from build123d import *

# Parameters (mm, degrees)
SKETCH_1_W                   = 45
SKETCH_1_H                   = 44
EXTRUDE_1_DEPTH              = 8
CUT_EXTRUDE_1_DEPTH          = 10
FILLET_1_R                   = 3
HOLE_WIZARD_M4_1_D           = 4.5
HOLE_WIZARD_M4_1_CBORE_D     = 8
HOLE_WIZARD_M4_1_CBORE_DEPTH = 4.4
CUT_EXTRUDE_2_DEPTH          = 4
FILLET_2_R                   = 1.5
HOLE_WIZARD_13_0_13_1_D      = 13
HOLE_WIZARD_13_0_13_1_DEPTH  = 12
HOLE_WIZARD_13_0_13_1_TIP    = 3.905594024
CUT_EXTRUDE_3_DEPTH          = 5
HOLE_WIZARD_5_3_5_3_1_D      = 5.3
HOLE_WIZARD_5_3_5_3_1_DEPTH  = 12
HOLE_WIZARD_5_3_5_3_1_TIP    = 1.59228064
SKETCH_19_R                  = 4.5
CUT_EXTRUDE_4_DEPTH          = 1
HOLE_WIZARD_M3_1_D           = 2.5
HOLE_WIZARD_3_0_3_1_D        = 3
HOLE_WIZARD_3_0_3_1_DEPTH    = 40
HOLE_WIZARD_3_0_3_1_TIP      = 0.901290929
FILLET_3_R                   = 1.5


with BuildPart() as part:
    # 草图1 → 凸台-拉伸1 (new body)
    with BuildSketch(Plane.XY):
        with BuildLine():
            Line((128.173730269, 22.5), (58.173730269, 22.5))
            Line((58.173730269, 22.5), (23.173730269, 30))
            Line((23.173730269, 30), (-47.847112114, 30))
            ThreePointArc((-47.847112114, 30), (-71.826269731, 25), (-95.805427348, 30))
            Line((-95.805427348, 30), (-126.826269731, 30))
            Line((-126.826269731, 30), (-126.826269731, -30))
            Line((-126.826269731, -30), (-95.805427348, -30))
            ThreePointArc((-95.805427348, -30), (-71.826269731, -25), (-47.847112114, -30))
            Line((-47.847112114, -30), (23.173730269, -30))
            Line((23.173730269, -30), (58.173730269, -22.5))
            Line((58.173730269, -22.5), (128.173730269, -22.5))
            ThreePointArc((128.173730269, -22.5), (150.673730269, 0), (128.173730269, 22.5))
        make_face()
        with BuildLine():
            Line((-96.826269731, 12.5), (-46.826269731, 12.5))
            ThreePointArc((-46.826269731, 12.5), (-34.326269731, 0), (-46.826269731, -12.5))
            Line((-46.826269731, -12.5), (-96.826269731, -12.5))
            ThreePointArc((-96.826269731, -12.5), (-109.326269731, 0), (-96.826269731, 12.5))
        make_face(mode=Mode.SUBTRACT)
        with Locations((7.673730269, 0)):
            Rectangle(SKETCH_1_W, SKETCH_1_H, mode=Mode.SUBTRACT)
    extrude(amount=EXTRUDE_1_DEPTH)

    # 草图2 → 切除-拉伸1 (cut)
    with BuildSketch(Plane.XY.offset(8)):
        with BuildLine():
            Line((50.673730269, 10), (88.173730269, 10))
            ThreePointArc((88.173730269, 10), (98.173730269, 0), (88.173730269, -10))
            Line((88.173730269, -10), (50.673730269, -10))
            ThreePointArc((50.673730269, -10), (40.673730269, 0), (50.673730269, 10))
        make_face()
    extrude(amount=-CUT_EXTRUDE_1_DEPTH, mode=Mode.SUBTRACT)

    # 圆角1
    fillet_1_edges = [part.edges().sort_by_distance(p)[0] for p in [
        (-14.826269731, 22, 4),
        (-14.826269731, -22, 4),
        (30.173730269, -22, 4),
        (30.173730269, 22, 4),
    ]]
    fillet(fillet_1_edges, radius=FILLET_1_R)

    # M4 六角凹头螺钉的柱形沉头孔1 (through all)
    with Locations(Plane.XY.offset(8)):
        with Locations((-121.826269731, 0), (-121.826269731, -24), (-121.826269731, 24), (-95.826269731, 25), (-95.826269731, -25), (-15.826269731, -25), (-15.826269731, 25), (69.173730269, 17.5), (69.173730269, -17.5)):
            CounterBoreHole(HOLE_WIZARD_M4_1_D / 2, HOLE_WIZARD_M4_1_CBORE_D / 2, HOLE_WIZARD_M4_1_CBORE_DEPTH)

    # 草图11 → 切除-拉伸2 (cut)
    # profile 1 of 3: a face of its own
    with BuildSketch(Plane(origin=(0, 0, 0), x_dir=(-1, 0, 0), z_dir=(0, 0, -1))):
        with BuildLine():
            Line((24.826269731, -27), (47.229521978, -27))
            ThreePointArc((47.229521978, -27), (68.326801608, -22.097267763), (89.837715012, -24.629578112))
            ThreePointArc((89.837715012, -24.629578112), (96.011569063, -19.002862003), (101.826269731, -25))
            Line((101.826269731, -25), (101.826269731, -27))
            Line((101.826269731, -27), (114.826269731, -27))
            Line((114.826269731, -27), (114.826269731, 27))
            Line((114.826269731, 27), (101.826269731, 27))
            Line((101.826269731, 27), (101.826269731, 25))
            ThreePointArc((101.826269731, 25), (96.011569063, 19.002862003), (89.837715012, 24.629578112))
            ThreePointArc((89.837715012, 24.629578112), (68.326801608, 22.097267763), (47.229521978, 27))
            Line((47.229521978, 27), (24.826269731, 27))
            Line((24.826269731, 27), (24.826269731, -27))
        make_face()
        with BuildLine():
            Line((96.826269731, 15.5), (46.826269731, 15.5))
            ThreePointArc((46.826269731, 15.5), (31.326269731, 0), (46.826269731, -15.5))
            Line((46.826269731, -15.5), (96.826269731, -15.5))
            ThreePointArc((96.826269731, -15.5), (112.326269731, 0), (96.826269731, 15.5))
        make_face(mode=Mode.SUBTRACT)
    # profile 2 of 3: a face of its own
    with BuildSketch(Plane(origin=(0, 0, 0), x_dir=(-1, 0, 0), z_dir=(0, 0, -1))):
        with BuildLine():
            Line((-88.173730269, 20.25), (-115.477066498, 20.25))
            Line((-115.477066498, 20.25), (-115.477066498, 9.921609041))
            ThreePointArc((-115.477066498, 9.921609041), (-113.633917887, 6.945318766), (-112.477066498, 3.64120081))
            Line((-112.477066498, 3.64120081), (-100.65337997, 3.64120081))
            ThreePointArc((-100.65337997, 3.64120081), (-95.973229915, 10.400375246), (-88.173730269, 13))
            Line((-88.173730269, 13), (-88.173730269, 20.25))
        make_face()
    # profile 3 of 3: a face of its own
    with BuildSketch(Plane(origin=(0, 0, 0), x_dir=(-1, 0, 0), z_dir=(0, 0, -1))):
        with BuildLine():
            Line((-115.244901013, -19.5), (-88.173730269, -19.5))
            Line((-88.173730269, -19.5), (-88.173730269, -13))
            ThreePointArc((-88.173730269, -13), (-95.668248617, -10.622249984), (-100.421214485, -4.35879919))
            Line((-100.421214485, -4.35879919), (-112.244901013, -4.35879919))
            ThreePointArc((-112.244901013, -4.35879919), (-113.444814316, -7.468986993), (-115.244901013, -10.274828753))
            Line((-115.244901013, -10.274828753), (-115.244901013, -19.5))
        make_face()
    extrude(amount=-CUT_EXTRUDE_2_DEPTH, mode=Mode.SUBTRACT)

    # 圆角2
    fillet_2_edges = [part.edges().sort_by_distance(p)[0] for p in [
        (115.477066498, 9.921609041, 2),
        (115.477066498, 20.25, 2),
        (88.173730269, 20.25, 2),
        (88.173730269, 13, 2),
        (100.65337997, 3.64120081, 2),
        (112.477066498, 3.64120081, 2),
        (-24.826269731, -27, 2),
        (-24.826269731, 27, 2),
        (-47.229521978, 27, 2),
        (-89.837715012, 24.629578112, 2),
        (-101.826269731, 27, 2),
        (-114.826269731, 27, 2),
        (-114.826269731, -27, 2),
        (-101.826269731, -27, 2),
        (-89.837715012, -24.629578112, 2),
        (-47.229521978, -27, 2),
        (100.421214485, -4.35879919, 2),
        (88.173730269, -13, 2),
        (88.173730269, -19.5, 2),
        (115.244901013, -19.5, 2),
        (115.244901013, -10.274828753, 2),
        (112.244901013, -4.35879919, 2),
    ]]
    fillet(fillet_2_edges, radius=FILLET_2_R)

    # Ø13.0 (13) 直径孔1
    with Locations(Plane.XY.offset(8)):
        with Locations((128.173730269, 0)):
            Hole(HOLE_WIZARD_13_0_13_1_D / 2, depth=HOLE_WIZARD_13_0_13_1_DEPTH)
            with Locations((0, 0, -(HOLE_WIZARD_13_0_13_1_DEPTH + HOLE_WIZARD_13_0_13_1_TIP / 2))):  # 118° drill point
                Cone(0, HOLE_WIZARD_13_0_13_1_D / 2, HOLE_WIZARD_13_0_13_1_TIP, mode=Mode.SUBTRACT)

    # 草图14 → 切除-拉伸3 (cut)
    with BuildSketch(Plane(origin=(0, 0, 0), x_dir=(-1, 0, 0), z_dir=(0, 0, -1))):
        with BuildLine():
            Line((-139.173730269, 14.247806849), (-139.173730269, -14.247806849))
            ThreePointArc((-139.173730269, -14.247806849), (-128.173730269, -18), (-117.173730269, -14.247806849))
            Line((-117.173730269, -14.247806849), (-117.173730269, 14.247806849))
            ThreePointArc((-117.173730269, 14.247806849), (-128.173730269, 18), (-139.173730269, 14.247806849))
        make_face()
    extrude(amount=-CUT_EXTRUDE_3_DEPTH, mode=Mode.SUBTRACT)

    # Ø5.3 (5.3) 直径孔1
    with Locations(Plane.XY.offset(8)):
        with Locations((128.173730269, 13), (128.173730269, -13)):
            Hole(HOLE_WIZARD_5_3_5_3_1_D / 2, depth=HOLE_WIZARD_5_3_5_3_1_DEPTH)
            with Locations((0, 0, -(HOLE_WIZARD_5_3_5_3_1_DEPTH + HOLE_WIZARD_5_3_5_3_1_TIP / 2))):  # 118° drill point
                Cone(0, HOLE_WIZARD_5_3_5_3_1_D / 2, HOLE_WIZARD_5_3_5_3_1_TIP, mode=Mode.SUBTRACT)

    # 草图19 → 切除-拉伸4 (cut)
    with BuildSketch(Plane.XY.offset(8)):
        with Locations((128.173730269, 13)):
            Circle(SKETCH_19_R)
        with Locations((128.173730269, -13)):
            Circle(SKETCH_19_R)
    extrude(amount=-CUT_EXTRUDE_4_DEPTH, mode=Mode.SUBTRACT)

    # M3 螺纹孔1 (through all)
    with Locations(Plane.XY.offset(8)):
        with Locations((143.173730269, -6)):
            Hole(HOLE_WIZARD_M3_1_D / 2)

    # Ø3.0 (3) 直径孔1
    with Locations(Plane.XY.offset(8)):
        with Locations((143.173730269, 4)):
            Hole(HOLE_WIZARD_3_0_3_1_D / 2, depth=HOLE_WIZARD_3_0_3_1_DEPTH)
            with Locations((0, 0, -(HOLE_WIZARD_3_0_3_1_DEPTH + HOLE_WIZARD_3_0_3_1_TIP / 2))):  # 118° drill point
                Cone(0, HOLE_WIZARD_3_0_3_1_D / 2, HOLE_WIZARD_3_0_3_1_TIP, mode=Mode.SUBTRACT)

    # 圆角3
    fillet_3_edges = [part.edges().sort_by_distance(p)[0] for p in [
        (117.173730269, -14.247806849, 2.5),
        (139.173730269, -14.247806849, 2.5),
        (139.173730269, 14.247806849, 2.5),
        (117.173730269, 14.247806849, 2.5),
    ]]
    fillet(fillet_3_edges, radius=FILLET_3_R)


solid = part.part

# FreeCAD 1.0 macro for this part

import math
import FreeCAD as App
import Part
import Sketcher

V = App.Vector


def edges_at(feature, points):
    """Names of the edges that pass closest to the given points."""
    edges = feature.Shape.Edges
    near = lambda p: min(range(len(edges)), key=lambda i: edges[i].distToShape(Part.Vertex(*p))[0])
    return sorted({f"Edge{near(p) + 1}" for p in points})

doc = App.newDocument("Part")
body = doc.addObject("PartDesign::Body", "Body")

# Sketch on XY plane
sketch1 = body.newObject("Sketcher::SketchObject", "Sketch")
sketch1.AttachmentSupport = (doc.getObject("XY_Plane"), [""])
sketch1.MapMode = "FlatFace"
sketch1.addGeometry(Part.LineSegment(V(128, 22, 0), V(58, 22, 0)), False)
sketch1.addGeometry(Part.LineSegment(V(58, 22, 0), V(23, 30, 0)), False)
sketch1.addGeometry(Part.LineSegment(V(23, 30, 0), V(-48, 30, 0)), False)
sketch1.addGeometry(Part.ArcOfCircle(Part.Circle(V(-72, 85, 0), V(0, 0, 1), 60), math.radians(-114), math.radians(-66)), False)
sketch1.addGeometry(Part.LineSegment(V(-96, 30, 0), V(-127, 30, 0)), False)
sketch1.addGeometry(Part.LineSegment(V(-127, 30, 0), V(-127, -30, 0)), False)
sketch1.addGeometry(Part.LineSegment(V(-127, -30, 0), V(-96, -30, 0)), False)
sketch1.addGeometry(Part.ArcOfCircle(Part.Circle(V(-72, -85, 0), V(0, 0, 1), 60), math.radians(66), math.radians(114)), False)
sketch1.addGeometry(Part.LineSegment(V(-48, -30, 0), V(23, -30, 0)), False)
sketch1.addGeometry(Part.LineSegment(V(23, -30, 0), V(58, -22, 0)), False)
sketch1.addGeometry(Part.LineSegment(V(58, -22, 0), V(128, -22, 0)), False)
sketch1.addGeometry(Part.ArcOfCircle(Part.Circle(V(128, 0, 0), V(0, 0, 1), 22), math.radians(-90), math.radians(90)), False)
sketch1.addGeometry(Part.ArcOfCircle(Part.Circle(V(-97, 0, 0), V(0, 0, 1), 12), math.radians(90), math.radians(270)), False)
sketch1.addGeometry(Part.LineSegment(V(-97, 12, 0), V(-47, 12, 0)), False)
sketch1.addGeometry(Part.ArcOfCircle(Part.Circle(V(-47, 0, 0), V(0, 0, 1), 12), math.radians(-90), math.radians(90)), False)
sketch1.addGeometry(Part.LineSegment(V(-47, -12, 0), V(-97, -12, 0)), False)
sketch1.addGeometry(Part.LineSegment(V(30, -22, 0), V(-15, -22, 0)), False)
sketch1.addGeometry(Part.LineSegment(V(-15, -22, 0), V(-15, 22, 0)), False)
sketch1.addGeometry(Part.LineSegment(V(-15, 22, 0), V(30, 22, 0)), False)
sketch1.addGeometry(Part.LineSegment(V(30, 22, 0), V(30, -22, 0)), False)
sketch1.addConstraint(Sketcher.Constraint("Coincident", 0, 2, 1, 1))
sketch1.addConstraint(Sketcher.Constraint("Coincident", 1, 2, 2, 1))
sketch1.addConstraint(Sketcher.Constraint("Coincident", 2, 2, 3, 2))
sketch1.addConstraint(Sketcher.Constraint("Coincident", 3, 1, 4, 1))
sketch1.addConstraint(Sketcher.Constraint("Coincident", 4, 2, 5, 1))
sketch1.addConstraint(Sketcher.Constraint("Coincident", 5, 2, 6, 1))
sketch1.addConstraint(Sketcher.Constraint("Coincident", 6, 2, 7, 2))
sketch1.addConstraint(Sketcher.Constraint("Coincident", 7, 1, 8, 1))
sketch1.addConstraint(Sketcher.Constraint("Coincident", 8, 2, 9, 1))
sketch1.addConstraint(Sketcher.Constraint("Coincident", 9, 2, 10, 1))
sketch1.addConstraint(Sketcher.Constraint("Tangent", 10, 2, 11, 1))
sketch1.addConstraint(Sketcher.Constraint("Tangent", 11, 2, 0, 1))
sketch1.addConstraint(Sketcher.Constraint("Tangent", 12, 1, 13, 1))
sketch1.addConstraint(Sketcher.Constraint("Tangent", 13, 2, 14, 2))
sketch1.addConstraint(Sketcher.Constraint("Tangent", 14, 1, 15, 1))
sketch1.addConstraint(Sketcher.Constraint("Tangent", 15, 2, 12, 2))
sketch1.addConstraint(Sketcher.Constraint("Coincident", 16, 2, 17, 1))
sketch1.addConstraint(Sketcher.Constraint("Coincident", 17, 2, 18, 1))
sketch1.addConstraint(Sketcher.Constraint("Coincident", 18, 2, 19, 1))
sketch1.addConstraint(Sketcher.Constraint("Coincident", 19, 2, 16, 1))
sketch1.addConstraint(Sketcher.Constraint("Horizontal", 0))
sketch1.addConstraint(Sketcher.Constraint("Horizontal", 2))
sketch1.addConstraint(Sketcher.Constraint("Horizontal", 4))
sketch1.addConstraint(Sketcher.Constraint("Vertical", 5))
sketch1.addConstraint(Sketcher.Constraint("Horizontal", 6))
sketch1.addConstraint(Sketcher.Constraint("Horizontal", 8))
sketch1.addConstraint(Sketcher.Constraint("Horizontal", 10))
sketch1.addConstraint(Sketcher.Constraint("Horizontal", 13))
sketch1.addConstraint(Sketcher.Constraint("Horizontal", 15))
sketch1.addConstraint(Sketcher.Constraint("Horizontal", 16))
sketch1.addConstraint(Sketcher.Constraint("Vertical", 17))
sketch1.addConstraint(Sketcher.Constraint("Horizontal", 18))
sketch1.addConstraint(Sketcher.Constraint("Vertical", 19))
sketch1.addConstraint(Sketcher.Constraint("Equal", 3, 7))
sketch1.addConstraint(Sketcher.Constraint("Symmetric", 3, 3, 7, 3, -1))
sketch1.addConstraint(Sketcher.Constraint("Symmetric", 1, 2, 8, 2, -1))
sketch1.addConstraint(Sketcher.Constraint("Symmetric", 0, 2, 9, 2, -1))
sketch1.addConstraint(Sketcher.Constraint("PointOnObject", 12, 3, -1))
sketch1.addConstraint(Sketcher.Constraint("Horizontal", 2, 2, 3, 1))
sketch1.addConstraint(Sketcher.Constraint("Horizontal", 6, 2, 7, 1))
sketch1.addConstraint(Sketcher.Constraint("Radius", 3, 60.0))
sketch1.addConstraint(Sketcher.Constraint("Radius", 11, 22.5))
sketch1.addConstraint(Sketcher.Constraint("Radius", 12, 12.5))
sketch1.addConstraint(Sketcher.Constraint("DistanceX", 0, 2, 0, 1, 70.0))
sketch1.addConstraint(Sketcher.Constraint("DistanceX", 13, 1, 13, 2, 50.0))
sketch1.addConstraint(Sketcher.Constraint("DistanceX", 16, 2, 16, 1, 45.0))
sketch1.addConstraint(Sketcher.Constraint("DistanceY", 5, 2, 5, 1, 60.0))
sketch1.addConstraint(Sketcher.Constraint("DistanceY", 17, 1, 17, 2, 44.0))
sketch1.addConstraint(Sketcher.Constraint("DistanceY", -1, 1, 3, 3, 85.0))
sketch1.addConstraint(Sketcher.Constraint("DistanceY", 16, 2, -1, 1, 22.0))
sketch1.addConstraint(Sketcher.Constraint("DistanceX", 3, 3, 11, 3, 200.0))
sketch1.addConstraint(Sketcher.Constraint("DistanceX", 12, 3, 3, 3, 25.0))
sketch1.addConstraint(Sketcher.Constraint("DistanceX", 1, 2, 0, 2, 35.0))
sketch1.addConstraint(Sketcher.Constraint("DistanceX", 4, 2, 12, 3, 30.0))
sketch1.addConstraint(Sketcher.Constraint("DistanceX", 14, 1, 16, 2, 32.0))
sketch1.addConstraint(Sketcher.Constraint("DistanceX", 3, 3, -1, 1, 71.82627))
pad1 = body.newObject("PartDesign::Pad", "Pad")
pad1.Profile = sketch1
pad1.Length = 8

# Sketch on XY plane
sketch2 = body.newObject("Sketcher::SketchObject", "Sketch001")
sketch2.AttachmentSupport = (doc.getObject("XY_Plane"), [""])
sketch2.MapMode = "FlatFace"
sketch2.AttachmentOffset = App.Placement(V(0, 0, 8), App.Rotation())
sketch2.addGeometry(Part.LineSegment(V(88, 10, 0), V(51, 10, 0)), False)
sketch2.addGeometry(Part.ArcOfCircle(Part.Circle(V(51, 0, 0), V(0, 0, 1), 10), math.radians(90), math.radians(270)), False)
sketch2.addGeometry(Part.LineSegment(V(51, -10, 0), V(88, -10, 0)), False)
sketch2.addGeometry(Part.ArcOfCircle(Part.Circle(V(88, 0, 0), V(0, 0, 1), 10), math.radians(-90), math.radians(90)), False)
sketch2.addConstraint(Sketcher.Constraint("Tangent", 0, 2, 1, 1))
sketch2.addConstraint(Sketcher.Constraint("Tangent", 1, 2, 2, 1))
sketch2.addConstraint(Sketcher.Constraint("Tangent", 2, 2, 3, 1))
sketch2.addConstraint(Sketcher.Constraint("Tangent", 3, 2, 0, 1))
sketch2.addConstraint(Sketcher.Constraint("Horizontal", 0))
sketch2.addConstraint(Sketcher.Constraint("Horizontal", 2))
sketch2.addConstraint(Sketcher.Constraint("PointOnObject", 1, 3, -1))
sketch2.addConstraint(Sketcher.Constraint("Radius", 1, 10.0))
sketch2.addConstraint(Sketcher.Constraint("DistanceX", 0, 2, 0, 1, 37.5))
sketch2.addConstraint(Sketcher.Constraint("DistanceX", -1, 1, 1, 3, 50.67373))
pocket1 = body.newObject("PartDesign::Pocket", "Pocket")
pocket1.Profile = sketch2
pocket1.Length = 10
doc.recompute()

fillet = body.newObject("PartDesign::Fillet", "Fillet")
fillet.Base = (pocket1, edges_at(pocket1, [
    (-14.826, 22, 4),
    (-14.826, -22, 4),
    (30.174, -22, 4),
    (30.174, 22, 4),
]))
fillet.Radius = 3

# Sketch on XY plane
sketch3 = body.newObject("Sketcher::SketchObject", "Sketch002")
sketch3.AttachmentSupport = (doc.getObject("XY_Plane"), [""])
sketch3.MapMode = "FlatFace"
sketch3.AttachmentOffset = App.Placement(V(0, 0, 8), App.Rotation())
sketch3.addGeometry(Part.Circle(V(-121.8, 0, 0), V(0, 0, 1), 2.2), False)
sketch3.addGeometry(Part.Circle(V(-121.8, -24, 0), V(0, 0, 1), 2.2), False)
sketch3.addGeometry(Part.Circle(V(-121.8, 24, 0), V(0, 0, 1), 2.2), False)
sketch3.addGeometry(Part.Circle(V(-95.8, 25, 0), V(0, 0, 1), 2.2), False)
sketch3.addGeometry(Part.Circle(V(-95.8, -25, 0), V(0, 0, 1), 2.2), False)
sketch3.addGeometry(Part.Circle(V(-15.8, -25, 0), V(0, 0, 1), 2.2), False)
sketch3.addGeometry(Part.Circle(V(-15.8, 25, 0), V(0, 0, 1), 2.2), False)
sketch3.addGeometry(Part.Circle(V(69.2, 17.5, 0), V(0, 0, 1), 2.2), False)
sketch3.addGeometry(Part.Circle(V(69.2, -17.5, 0), V(0, 0, 1), 2.2), False)
sketch3.addConstraint(Sketcher.Constraint("Equal", 0, 1))
sketch3.addConstraint(Sketcher.Constraint("Equal", 1, 2))
sketch3.addConstraint(Sketcher.Constraint("Equal", 2, 3))
sketch3.addConstraint(Sketcher.Constraint("Equal", 3, 4))
sketch3.addConstraint(Sketcher.Constraint("Equal", 4, 5))
sketch3.addConstraint(Sketcher.Constraint("Equal", 5, 6))
sketch3.addConstraint(Sketcher.Constraint("Equal", 6, 7))
sketch3.addConstraint(Sketcher.Constraint("Equal", 7, 8))
sketch3.addConstraint(Sketcher.Constraint("Symmetric", 1, 3, 2, 3, -1))
sketch3.addConstraint(Sketcher.Constraint("Symmetric", 3, 3, 4, 3, -1))
sketch3.addConstraint(Sketcher.Constraint("Symmetric", 5, 3, 6, 3, -1))
sketch3.addConstraint(Sketcher.Constraint("Symmetric", 7, 3, 8, 3, -1))
sketch3.addConstraint(Sketcher.Constraint("PointOnObject", 0, 3, -1))
sketch3.addConstraint(Sketcher.Constraint("Horizontal", 4, 3, 5, 3))
sketch3.addConstraint(Sketcher.Constraint("Vertical", 0, 3, 1, 3))
sketch3.addConstraint(Sketcher.Constraint("Diameter", 0, 4.5))
sketch3.addConstraint(Sketcher.Constraint("DistanceY", 1, 3, -1, 1, 24.0))
sketch3.addConstraint(Sketcher.Constraint("DistanceY", -1, 1, 3, 3, 25.0))
sketch3.addConstraint(Sketcher.Constraint("DistanceX", 2, 3, 3, 3, 26.0))
sketch3.addConstraint(Sketcher.Constraint("DistanceX", 4, 3, 5, 3, 80.0))
sketch3.addConstraint(Sketcher.Constraint("DistanceX", 6, 3, 7, 3, 85.0))
sketch3.addConstraint(Sketcher.Constraint("DistanceY", 8, 3, 7, 3, 35.0))
sketch3.addConstraint(Sketcher.Constraint("DistanceX", 0, 3, -1, 1, 121.82627))
doc.recompute()
hole = body.newObject("PartDesign::Hole", "Hole")
hole.Profile = sketch3
hole.ThreadType = "None"
hole.Diameter = 4.5
hole.DepthType = "ThroughAll"
hole.HoleCutType = "Counterbore"
hole.HoleCutDiameter = 8
hole.HoleCutDepth = 4.4

# Sketch on XY plane
sketch4 = body.newObject("Sketcher::SketchObject", "Sketch003")
sketch4.AttachmentSupport = (doc.getObject("XY_Plane"), [""])
sketch4.MapMode = "FlatFace"
sketch4.addGeometry(Part.LineSegment(V(-24.8, -27, 0), V(-47.2, -27, 0)), False)
sketch4.addGeometry(Part.ArcOfCircle(Part.Circle(V(-71.8, -85, 0), V(0, 0, 1), 63), math.radians(67), math.radians(107)), False)
sketch4.addGeometry(Part.ArcOfCircle(Part.Circle(V(-95.8, -25, 0), V(0, 0, 1), 6), math.radians(4), math.radians(180)), False)
sketch4.addGeometry(Part.LineSegment(V(-101.8, -25, 0), V(-101.8, -27, 0)), False)
sketch4.addGeometry(Part.LineSegment(V(-101.8, -27, 0), V(-114.8, -27, 0)), False)
sketch4.addGeometry(Part.LineSegment(V(-114.8, -27, 0), V(-114.8, 27, 0)), False)
sketch4.addGeometry(Part.LineSegment(V(-114.8, 27, 0), V(-101.8, 27, 0)), False)
sketch4.addGeometry(Part.LineSegment(V(-101.8, 27, 0), V(-101.8, 25, 0)), False)
sketch4.addGeometry(Part.ArcOfCircle(Part.Circle(V(-95.8, 25, 0), V(0, 0, 1), 6), math.radians(180), math.radians(356)), False)
sketch4.addGeometry(Part.ArcOfCircle(Part.Circle(V(-71.8, 85, 0), V(0, 0, 1), 63), math.radians(-107), math.radians(-67)), False)
sketch4.addGeometry(Part.LineSegment(V(-47.2, 27, 0), V(-24.8, 27, 0)), False)
sketch4.addGeometry(Part.LineSegment(V(-24.8, 27, 0), V(-24.8, -27, 0)), False)
sketch4.addGeometry(Part.LineSegment(V(-46.8, 15.5, 0), V(-96.8, 15.5, 0)), False)
sketch4.addGeometry(Part.ArcOfCircle(Part.Circle(V(-96.8, 0, 0), V(0, 0, 1), 15.5), math.radians(90), math.radians(270)), False)
sketch4.addGeometry(Part.LineSegment(V(-96.8, -15.5, 0), V(-46.8, -15.5, 0)), False)
sketch4.addGeometry(Part.ArcOfCircle(Part.Circle(V(-46.8, 0, 0), V(0, 0, 1), 15.5), math.radians(-90), math.radians(90)), False)
sketch4.addGeometry(Part.LineSegment(V(88.2, 20.2, 0), V(115.5, 20.2, 0)), False)
sketch4.addGeometry(Part.LineSegment(V(115.5, 20.2, 0), V(115.5, 9.9, 0)), False)
sketch4.addGeometry(Part.ArcOfCircle(Part.Circle(V(128.2, 0, 0), V(0, 0, 1), 16.1), math.radians(142), math.radians(167)), False)
sketch4.addGeometry(Part.LineSegment(V(112.5, 3.6, 0), V(100.7, 3.6, 0)), False)
sketch4.addGeometry(Part.ArcOfCircle(Part.Circle(V(88.2, 0, 0), V(0, 0, 1), 13), math.radians(16), math.radians(90)), False)
sketch4.addGeometry(Part.LineSegment(V(88.2, 13, 0), V(88.2, 20.2, 0)), False)
sketch4.addGeometry(Part.LineSegment(V(115.2, -19.5, 0), V(88.2, -19.5, 0)), False)
sketch4.addGeometry(Part.LineSegment(V(88.2, -19.5, 0), V(88.2, -13, 0)), False)
sketch4.addGeometry(Part.ArcOfCircle(Part.Circle(V(88.2, 0, 0), V(0, 0, 1), 13), math.radians(-90), math.radians(-20)), False)
sketch4.addGeometry(Part.LineSegment(V(100.4, -4.4, 0), V(112.2, -4.4, 0)), False)
sketch4.addGeometry(Part.ArcOfCircle(Part.Circle(V(128.2, 0, 0), V(0, 0, 1), 16.5), math.radians(-165), math.radians(-142)), False)
sketch4.addGeometry(Part.LineSegment(V(115.2, -10.3, 0), V(115.2, -19.5, 0)), False)
sketch4.addConstraint(Sketcher.Constraint("Coincident", 0, 2, 1, 1))
sketch4.addConstraint(Sketcher.Constraint("Coincident", 1, 2, 2, 1))
sketch4.addConstraint(Sketcher.Constraint("Tangent", 2, 2, 3, 1))
sketch4.addConstraint(Sketcher.Constraint("Coincident", 3, 2, 4, 1))
sketch4.addConstraint(Sketcher.Constraint("Coincident", 4, 2, 5, 1))
sketch4.addConstraint(Sketcher.Constraint("Coincident", 5, 2, 6, 1))
sketch4.addConstraint(Sketcher.Constraint("Coincident", 6, 2, 7, 1))
sketch4.addConstraint(Sketcher.Constraint("Tangent", 7, 2, 8, 1))
sketch4.addConstraint(Sketcher.Constraint("Coincident", 8, 2, 9, 1))
sketch4.addConstraint(Sketcher.Constraint("Coincident", 9, 2, 10, 1))
sketch4.addConstraint(Sketcher.Constraint("Coincident", 10, 2, 11, 1))
sketch4.addConstraint(Sketcher.Constraint("Coincident", 11, 2, 0, 1))
sketch4.addConstraint(Sketcher.Constraint("Tangent", 12, 2, 13, 1))
sketch4.addConstraint(Sketcher.Constraint("Tangent", 13, 2, 14, 1))
sketch4.addConstraint(Sketcher.Constraint("Tangent", 14, 2, 15, 1))
sketch4.addConstraint(Sketcher.Constraint("Tangent", 15, 2, 12, 1))
sketch4.addConstraint(Sketcher.Constraint("Coincident", 16, 2, 17, 1))
sketch4.addConstraint(Sketcher.Constraint("Coincident", 17, 2, 18, 1))
sketch4.addConstraint(Sketcher.Constraint("Coincident", 18, 2, 19, 1))
sketch4.addConstraint(Sketcher.Constraint("Coincident", 19, 2, 20, 1))
sketch4.addConstraint(Sketcher.Constraint("Coincident", 20, 2, 21, 1))
sketch4.addConstraint(Sketcher.Constraint("Coincident", 21, 2, 16, 1))
sketch4.addConstraint(Sketcher.Constraint("Coincident", 22, 2, 23, 1))
sketch4.addConstraint(Sketcher.Constraint("Coincident", 23, 2, 24, 1))
sketch4.addConstraint(Sketcher.Constraint("Coincident", 24, 2, 25, 1))
sketch4.addConstraint(Sketcher.Constraint("Coincident", 25, 2, 26, 1))
sketch4.addConstraint(Sketcher.Constraint("Coincident", 26, 2, 27, 1))
sketch4.addConstraint(Sketcher.Constraint("Coincident", 27, 2, 22, 1))
sketch4.addConstraint(Sketcher.Constraint("Horizontal", 0))
sketch4.addConstraint(Sketcher.Constraint("Vertical", 3))
sketch4.addConstraint(Sketcher.Constraint("Horizontal", 4))
sketch4.addConstraint(Sketcher.Constraint("Vertical", 5))
sketch4.addConstraint(Sketcher.Constraint("Horizontal", 6))
sketch4.addConstraint(Sketcher.Constraint("Vertical", 7))
sketch4.addConstraint(Sketcher.Constraint("Horizontal", 10))
sketch4.addConstraint(Sketcher.Constraint("Vertical", 11))
sketch4.addConstraint(Sketcher.Constraint("Horizontal", 12))
sketch4.addConstraint(Sketcher.Constraint("Horizontal", 14))
sketch4.addConstraint(Sketcher.Constraint("Horizontal", 16))
sketch4.addConstraint(Sketcher.Constraint("Vertical", 17))
sketch4.addConstraint(Sketcher.Constraint("Horizontal", 19))
sketch4.addConstraint(Sketcher.Constraint("Vertical", 21))
sketch4.addConstraint(Sketcher.Constraint("Horizontal", 22))
sketch4.addConstraint(Sketcher.Constraint("Vertical", 23))
sketch4.addConstraint(Sketcher.Constraint("Horizontal", 25))
sketch4.addConstraint(Sketcher.Constraint("Vertical", 27))
sketch4.addConstraint(Sketcher.Constraint("Coincident", 24, 3, 20, 3))
sketch4.addConstraint(Sketcher.Constraint("Coincident", 26, 3, 18, 3))
sketch4.addConstraint(Sketcher.Constraint("Equal", 2, 8))
sketch4.addConstraint(Sketcher.Constraint("Equal", 1, 9))
sketch4.addConstraint(Sketcher.Constraint("Equal", 20, 24))
sketch4.addConstraint(Sketcher.Constraint("Symmetric", 2, 3, 8, 3, -1))
sketch4.addConstraint(Sketcher.Constraint("Symmetric", 1, 3, 9, 3, -1))
sketch4.addConstraint(Sketcher.Constraint("Symmetric", 20, 2, 23, 2, -1))
sketch4.addConstraint(Sketcher.Constraint("PointOnObject", 13, 3, -1))
sketch4.addConstraint(Sketcher.Constraint("PointOnObject", 18, 3, -1))
sketch4.addConstraint(Sketcher.Constraint("Horizontal", 0, 2, 3, 2))
sketch4.addConstraint(Sketcher.Constraint("Horizontal", 6, 2, 9, 2))
sketch4.addConstraint(Sketcher.Constraint("Vertical", 0, 2, 9, 2))
sketch4.addConstraint(Sketcher.Constraint("Vertical", 24, 3, 20, 2))
sketch4.addConstraint(Sketcher.Constraint("Equal", 19, 25))
sketch4.addConstraint(Sketcher.Constraint("Radius", 1, 63.0))
sketch4.addConstraint(Sketcher.Constraint("Radius", 2, 6.0))
sketch4.addConstraint(Sketcher.Constraint("Radius", 20, 13.0))
sketch4.addConstraint(Sketcher.Constraint("Radius", 13, 15.5))
sketch4.addConstraint(Sketcher.Constraint("DistanceX", 4, 2, 4, 1, 13.0))
sketch4.addConstraint(Sketcher.Constraint("DistanceX", 12, 2, 12, 1, 50.0))
sketch4.addConstraint(Sketcher.Constraint("DistanceY", 3, 2, 3, 1, 2.0))
sketch4.addConstraint(Sketcher.Constraint("DistanceY", 5, 1, 5, 2, 54.0))
sketch4.addConstraint(Sketcher.Constraint("DistanceY", 23, 1, 23, 2, 6.5))
sketch4.addConstraint(Sketcher.Constraint("DistanceY", 1, 3, -1, 1, 85.0))
sketch4.addConstraint(Sketcher.Constraint("DistanceX", 2, 3, 1, 3, 24.0))
sketch4.addConstraint(Sketcher.Constraint("DistanceX", 13, 3, 2, 3, 1.0))
sketch4.addConstraint(Sketcher.Constraint("DistanceX", 15, 3, 18, 3, 175.0))
sketch4.addConstraint(Sketcher.Constraint("DistanceX", 20, 3, 18, 3, 40.0))
sketch4.addConstraint(Sketcher.Constraint("DistanceX", 15, 3, 10, 2, 22.0))
sketch4.addConstraint(Sketcher.Constraint("DistanceX", 18, 2, 17, 2, 3.0))
sketch4.addConstraint(Sketcher.Constraint("DistanceY", 24, 2, 19, 2, 8.0))
sketch4.addConstraint(Sketcher.Constraint("DistanceX", 25, 2, 26, 2, 3.0))
sketch4.addConstraint(Sketcher.Constraint("DistanceY", 21, 1, 21, 2, 7.25))
sketch4.addConstraint(Sketcher.Constraint("Radius", 18, 16.11346))
sketch4.addConstraint(Sketcher.Constraint("Radius", 26, 16.51444))
sketch4.addConstraint(Sketcher.Constraint("DistanceX", -1, 1, 25, 2, 112.244901))
pocket2 = body.newObject("PartDesign::Pocket", "Pocket001")
pocket2.Profile = sketch4
pocket2.Length = 4
pocket2.Reversed = True
doc.recompute()

fillet2 = body.newObject("PartDesign::Fillet", "Fillet001")
fillet2.Base = (pocket2, edges_at(pocket2, [
    (115.477, 9.922, 2),
    (115.477, 20.25, 2),
    (88.174, 20.25, 2),
    (88.174, 13, 2),
    (100.653, 3.641, 2),
    (112.477, 3.641, 2),
    (-24.826, -27, 2),
    (-24.826, 27, 2),
    (-47.23, 27, 2),
    (-89.838, 24.63, 2),
    (-101.826, 27, 2),
    (-114.826, 27, 2),
    (-114.826, -27, 2),
    (-101.826, -27, 2),
    (-89.838, -24.63, 2),
    (-47.23, -27, 2),
    (100.421, -4.359, 2),
    (88.174, -13, 2),
    (88.174, -19.5, 2),
    (115.245, -19.5, 2),
    (115.245, -10.275, 2),
    (112.245, -4.359, 2),
]))
fillet2.Radius = 1.5

# Sketch on XY plane
sketch5 = body.newObject("Sketcher::SketchObject", "Sketch004")
sketch5.AttachmentSupport = (doc.getObject("XY_Plane"), [""])
sketch5.MapMode = "FlatFace"
sketch5.AttachmentOffset = App.Placement(V(0, 0, 8), App.Rotation())
sketch5.addGeometry(Part.Circle(V(128, 0, 0), V(0, 0, 1), 6), False)
sketch5.addConstraint(Sketcher.Constraint("PointOnObject", 0, 3, -1))
sketch5.addConstraint(Sketcher.Constraint("Diameter", 0, 13.0))
sketch5.addConstraint(Sketcher.Constraint("DistanceX", -1, 1, 0, 3, 128.17373))
doc.recompute()
hole2 = body.newObject("PartDesign::Hole", "Hole001")
hole2.Profile = sketch5
hole2.ThreadType = "None"
hole2.Diameter = 13
hole2.DepthType = "Dimension"
hole2.Depth = 12
hole2.DrillPoint = "Angled"
hole2.DrillPointAngle = 118

# Sketch on XY plane
sketch6 = body.newObject("Sketcher::SketchObject", "Sketch005")
sketch6.AttachmentSupport = (doc.getObject("XY_Plane"), [""])
sketch6.MapMode = "FlatFace"
sketch6.addGeometry(Part.LineSegment(V(139, 14, 0), V(139, -14, 0)), False)
sketch6.addGeometry(Part.ArcOfCircle(Part.Circle(V(128, 0, 0), V(0, 0, 1), 18), math.radians(-128), math.radians(-52)), False)
sketch6.addGeometry(Part.LineSegment(V(117, -14, 0), V(117, 14, 0)), False)
sketch6.addGeometry(Part.ArcOfCircle(Part.Circle(V(128, 0, 0), V(0, 0, 1), 18), math.radians(52), math.radians(128)), False)
sketch6.addConstraint(Sketcher.Constraint("Coincident", 0, 2, 1, 2))
sketch6.addConstraint(Sketcher.Constraint("Coincident", 1, 1, 2, 1))
sketch6.addConstraint(Sketcher.Constraint("Coincident", 2, 2, 3, 2))
sketch6.addConstraint(Sketcher.Constraint("Coincident", 3, 1, 0, 1))
sketch6.addConstraint(Sketcher.Constraint("Vertical", 0))
sketch6.addConstraint(Sketcher.Constraint("Vertical", 2))
sketch6.addConstraint(Sketcher.Constraint("Coincident", 3, 3, 1, 3))
sketch6.addConstraint(Sketcher.Constraint("Equal", 1, 3))
sketch6.addConstraint(Sketcher.Constraint("PointOnObject", 1, 3, -1))
sketch6.addConstraint(Sketcher.Constraint("Horizontal", 0, 2, 1, 1))
sketch6.addConstraint(Sketcher.Constraint("Radius", 1, 18.0))
sketch6.addConstraint(Sketcher.Constraint("DistanceX", 3, 3, 0, 2, 11.0))
sketch6.addConstraint(Sketcher.Constraint("DistanceX", -1, 1, 1, 3, 128.17373))
pocket3 = body.newObject("PartDesign::Pocket", "Pocket002")
pocket3.Profile = sketch6
pocket3.Length = 5
pocket3.Reversed = True

# Sketch on XY plane
sketch7 = body.newObject("Sketcher::SketchObject", "Sketch006")
sketch7.AttachmentSupport = (doc.getObject("XY_Plane"), [""])
sketch7.MapMode = "FlatFace"
sketch7.AttachmentOffset = App.Placement(V(0, 0, 8), App.Rotation())
sketch7.addGeometry(Part.Circle(V(128.2, 13, 0), V(0, 0, 1), 2.6), False)
sketch7.addGeometry(Part.Circle(V(128.2, -13, 0), V(0, 0, 1), 2.6), False)
sketch7.addConstraint(Sketcher.Constraint("Equal", 0, 1))
sketch7.addConstraint(Sketcher.Constraint("Symmetric", 0, 3, 1, 3, -1))
sketch7.addConstraint(Sketcher.Constraint("Diameter", 0, 5.3))
sketch7.addConstraint(Sketcher.Constraint("DistanceY", -1, 1, 0, 3, 13.0))
sketch7.addConstraint(Sketcher.Constraint("DistanceX", -1, 1, 0, 3, 128.17373))
doc.recompute()
hole3 = body.newObject("PartDesign::Hole", "Hole002")
hole3.Profile = sketch7
hole3.ThreadType = "None"
hole3.Diameter = 5.3
hole3.DepthType = "Dimension"
hole3.Depth = 12
hole3.DrillPoint = "Angled"
hole3.DrillPointAngle = 118

# Sketch on XY plane
sketch8 = body.newObject("Sketcher::SketchObject", "Sketch007")
sketch8.AttachmentSupport = (doc.getObject("XY_Plane"), [""])
sketch8.MapMode = "FlatFace"
sketch8.AttachmentOffset = App.Placement(V(0, 0, 8), App.Rotation())
sketch8.addGeometry(Part.Circle(V(128.2, 13, 0), V(0, 0, 1), 4.5), False)
sketch8.addGeometry(Part.Circle(V(128.2, -13, 0), V(0, 0, 1), 4.5), False)
sketch8.addConstraint(Sketcher.Constraint("Equal", 0, 1))
sketch8.addConstraint(Sketcher.Constraint("Symmetric", 0, 3, 1, 3, -1))
sketch8.addConstraint(Sketcher.Constraint("Diameter", 0, 9.0))
sketch8.addConstraint(Sketcher.Constraint("DistanceY", -1, 1, 0, 3, 13.0))
sketch8.addConstraint(Sketcher.Constraint("DistanceX", -1, 1, 0, 3, 128.17373))
pocket4 = body.newObject("PartDesign::Pocket", "Pocket003")
pocket4.Profile = sketch8
pocket4.Length = 1

# Sketch on XY plane
sketch9 = body.newObject("Sketcher::SketchObject", "Sketch008")
sketch9.AttachmentSupport = (doc.getObject("XY_Plane"), [""])
sketch9.MapMode = "FlatFace"
sketch9.AttachmentOffset = App.Placement(V(0, 0, 8), App.Rotation())
sketch9.addGeometry(Part.Circle(V(143.2, -6, 0), V(0, 0, 1), 1.2), False)
sketch9.addConstraint(Sketcher.Constraint("Diameter", 0, 2.5))
sketch9.addConstraint(Sketcher.Constraint("DistanceY", 0, 3, -1, 1, 6.0))
sketch9.addConstraint(Sketcher.Constraint("DistanceX", -1, 1, 0, 3, 143.17373))
doc.recompute()
hole4 = body.newObject("PartDesign::Hole", "Hole003")
hole4.Profile = sketch9
hole4.ThreadType = "None"
hole4.Diameter = 2.5
hole4.DepthType = "ThroughAll"

# Sketch on XY plane
sketch10 = body.newObject("Sketcher::SketchObject", "Sketch009")
sketch10.AttachmentSupport = (doc.getObject("XY_Plane"), [""])
sketch10.MapMode = "FlatFace"
sketch10.AttachmentOffset = App.Placement(V(0, 0, 8), App.Rotation())
sketch10.addGeometry(Part.Circle(V(143.2, 4, 0), V(0, 0, 1), 1.5), False)
sketch10.addConstraint(Sketcher.Constraint("Diameter", 0, 3.0))
sketch10.addConstraint(Sketcher.Constraint("DistanceY", -1, 1, 0, 3, 4.0))
sketch10.addConstraint(Sketcher.Constraint("DistanceX", -1, 1, 0, 3, 143.17373))
doc.recompute()
hole5 = body.newObject("PartDesign::Hole", "Hole004")
hole5.Profile = sketch10
hole5.ThreadType = "None"
hole5.Diameter = 3
hole5.DepthType = "Dimension"
hole5.Depth = 40
hole5.DrillPoint = "Angled"
hole5.DrillPointAngle = 118
doc.recompute()

fillet3 = body.newObject("PartDesign::Fillet", "Fillet002")
fillet3.Base = (hole5, edges_at(hole5, [
    (117.174, -14.248, 2.5),
    (139.174, -14.248, 2.5),
    (139.174, 14.248, 2.5),
    (117.174, 14.248, 2.5),
]))
fillet3.Radius = 1.5

doc.recompute()
